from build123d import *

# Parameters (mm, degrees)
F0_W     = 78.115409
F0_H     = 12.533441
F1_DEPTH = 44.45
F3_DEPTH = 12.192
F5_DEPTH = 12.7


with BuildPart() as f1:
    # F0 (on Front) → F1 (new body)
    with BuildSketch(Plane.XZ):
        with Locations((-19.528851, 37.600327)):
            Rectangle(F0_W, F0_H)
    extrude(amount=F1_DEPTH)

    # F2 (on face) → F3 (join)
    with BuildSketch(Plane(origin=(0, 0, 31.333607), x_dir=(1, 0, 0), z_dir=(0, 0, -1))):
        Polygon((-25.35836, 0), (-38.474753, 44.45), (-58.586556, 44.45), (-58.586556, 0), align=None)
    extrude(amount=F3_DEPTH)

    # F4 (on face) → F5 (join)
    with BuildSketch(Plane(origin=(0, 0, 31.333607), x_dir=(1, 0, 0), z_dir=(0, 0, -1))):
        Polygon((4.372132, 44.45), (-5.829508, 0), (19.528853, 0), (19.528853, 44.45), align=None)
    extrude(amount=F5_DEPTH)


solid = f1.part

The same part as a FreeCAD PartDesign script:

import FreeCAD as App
import Part
import Sketcher
Q = App.Units.Quantity


def add_polygon(sketch, points):
    """Adds a closed chain of lines whose ends are joined by coincident constraints."""
    first, n = sketch.GeometryCount, len(points)
    for a, b in zip(points, points[1:] + points[:1]):
        sketch.addGeometry(Part.LineSegment(App.Vector(*a, 0), App.Vector(*b, 0)), False)
    for i in range(n):
        sketch.addConstraint(Sketcher.Constraint("Coincident", first + i, 2, first + (i + 1) % n, 1))

doc = App.newDocument("Part")
body = doc.addObject("PartDesign::Body", "Body")

sketch1 = doc.addObject("Sketcher::SketchObject", "Sketch")
body.addObject(sketch1)
sketch1.AttachmentSupport = (doc.XZ_Plane, [""])
sketch1.MapMode = "FlatFace"
add_polygon(sketch1, [(-59, 44), (-59, 31), (20, 31), (20, 44)])
sketch1.addConstraint(Sketcher.Constraint("Vertical", 0))
sketch1.addConstraint(Sketcher.Constraint("Horizontal", 1))
sketch1.addConstraint(Sketcher.Constraint("Vertical", 2))
sketch1.addConstraint(Sketcher.Constraint("Horizontal", 3))
sketch1.addConstraint(Sketcher.Constraint("DistanceX", 1, 1, 1, 2, Q("78.115409 mm")))
sketch1.addConstraint(Sketcher.Constraint("DistanceY", 0, 2, 0, 1, Q("12.533441 mm")))
sketch1.addConstraint(Sketcher.Constraint("DistanceX", 0, 2, -1, 1, Q("58.586556 mm")))
sketch1.addConstraint(Sketcher.Constraint("DistanceY", -1, 1, 0, 2, Q("31.333606 mm")))
pad1 = doc.addObject("PartDesign::Pad", "Pad")
body.addObject(pad1)
pad1.Profile = sketch1
pad1.Length = Q("1.75 in")

sketch2 = doc.addObject("Sketcher::SketchObject", "Sketch001")
body.addObject(sketch2)
sketch2.AttachmentSupport = (doc.XY_Plane, [""])
sketch2.MapMode = "FlatFace"
sketch2.AttachmentOffset = App.Placement(App.Vector(0, 0, 31.333607), App.Rotation())
add_polygon(sketch2, [(-25, 0), (-38, -44), (-59, -44), (-59, 0)])
sketch2.addConstraint(Sketcher.Constraint("Horizontal", 1))
sketch2.addConstraint(Sketcher.Constraint("Vertical", 2))
sketch2.addConstraint(Sketcher.Constraint("Horizontal", 3))
sketch2.addConstraint(Sketcher.Constraint("PointOnObject", 2, 2, -1))
sketch2.addConstraint(Sketcher.Constraint("DistanceY", 2, 1, 2, 2, Q("1.75 in")))
sketch2.addConstraint(Sketcher.Constraint("Distance", 0, Q("46.344819 mm")))
sketch2.addConstraint(Sketcher.Constraint("DistanceX", 1, 2, 1, 1, Q("20.111803 mm")))
sketch2.addConstraint(Sketcher.Constraint("DistanceX", 3, 2, -1, 1, Q("25.35836 mm")))
pad2 = doc.addObject("PartDesign::Pad", "Pad001")
body.addObject(pad2)
pad2.Profile = sketch2
pad2.Length = Q("0.48 in")
pad2.Reversed = True

sketch3 = doc.addObject("Sketcher::SketchObject", "Sketch002")
body.addObject(sketch3)
sketch3.AttachmentSupport = (doc.XY_Plane, [""])
sketch3.MapMode = "FlatFace"
sketch3.AttachmentOffset = App.Placement(App.Vector(0, 0, 31.333607), App.Rotation())
add_polygon(sketch3, [(4, -44), (-6, 0), (20, 0), (20, -44)])
sketch3.addConstraint(Sketcher.Constraint("Horizontal", 1))
sketch3.addConstraint(Sketcher.Constraint("Vertical", 2))
sketch3.addConstraint(Sketcher.Constraint("Horizontal", 3))
sketch3.addConstraint(Sketcher.Constraint("PointOnObject", 0, 2, -1))
sketch3.addConstraint(Sketcher.Constraint("DistanceY", 2, 2, 2, 1, Q("1.75 in")))
sketch3.addConstraint(Sketcher.Constraint("DistanceX", 1, 1, 1, 2, Q("25.358361 mm")))
sketch3.addConstraint(Sketcher.Constraint("DistanceX", 3, 2, 3, 1, Q("15.156721 mm")))
sketch3.addConstraint(Sketcher.Constraint("DistanceX", -1, 1, 3, 2, Q("4.372132 mm")))
pad3 = doc.addObject("PartDesign::Pad", "Pad002")
body.addObject(pad3)
pad3.Profile = sketch3
pad3.Length = Q("0.5 in")
pad3.Reversed = True

doc.recompute()
